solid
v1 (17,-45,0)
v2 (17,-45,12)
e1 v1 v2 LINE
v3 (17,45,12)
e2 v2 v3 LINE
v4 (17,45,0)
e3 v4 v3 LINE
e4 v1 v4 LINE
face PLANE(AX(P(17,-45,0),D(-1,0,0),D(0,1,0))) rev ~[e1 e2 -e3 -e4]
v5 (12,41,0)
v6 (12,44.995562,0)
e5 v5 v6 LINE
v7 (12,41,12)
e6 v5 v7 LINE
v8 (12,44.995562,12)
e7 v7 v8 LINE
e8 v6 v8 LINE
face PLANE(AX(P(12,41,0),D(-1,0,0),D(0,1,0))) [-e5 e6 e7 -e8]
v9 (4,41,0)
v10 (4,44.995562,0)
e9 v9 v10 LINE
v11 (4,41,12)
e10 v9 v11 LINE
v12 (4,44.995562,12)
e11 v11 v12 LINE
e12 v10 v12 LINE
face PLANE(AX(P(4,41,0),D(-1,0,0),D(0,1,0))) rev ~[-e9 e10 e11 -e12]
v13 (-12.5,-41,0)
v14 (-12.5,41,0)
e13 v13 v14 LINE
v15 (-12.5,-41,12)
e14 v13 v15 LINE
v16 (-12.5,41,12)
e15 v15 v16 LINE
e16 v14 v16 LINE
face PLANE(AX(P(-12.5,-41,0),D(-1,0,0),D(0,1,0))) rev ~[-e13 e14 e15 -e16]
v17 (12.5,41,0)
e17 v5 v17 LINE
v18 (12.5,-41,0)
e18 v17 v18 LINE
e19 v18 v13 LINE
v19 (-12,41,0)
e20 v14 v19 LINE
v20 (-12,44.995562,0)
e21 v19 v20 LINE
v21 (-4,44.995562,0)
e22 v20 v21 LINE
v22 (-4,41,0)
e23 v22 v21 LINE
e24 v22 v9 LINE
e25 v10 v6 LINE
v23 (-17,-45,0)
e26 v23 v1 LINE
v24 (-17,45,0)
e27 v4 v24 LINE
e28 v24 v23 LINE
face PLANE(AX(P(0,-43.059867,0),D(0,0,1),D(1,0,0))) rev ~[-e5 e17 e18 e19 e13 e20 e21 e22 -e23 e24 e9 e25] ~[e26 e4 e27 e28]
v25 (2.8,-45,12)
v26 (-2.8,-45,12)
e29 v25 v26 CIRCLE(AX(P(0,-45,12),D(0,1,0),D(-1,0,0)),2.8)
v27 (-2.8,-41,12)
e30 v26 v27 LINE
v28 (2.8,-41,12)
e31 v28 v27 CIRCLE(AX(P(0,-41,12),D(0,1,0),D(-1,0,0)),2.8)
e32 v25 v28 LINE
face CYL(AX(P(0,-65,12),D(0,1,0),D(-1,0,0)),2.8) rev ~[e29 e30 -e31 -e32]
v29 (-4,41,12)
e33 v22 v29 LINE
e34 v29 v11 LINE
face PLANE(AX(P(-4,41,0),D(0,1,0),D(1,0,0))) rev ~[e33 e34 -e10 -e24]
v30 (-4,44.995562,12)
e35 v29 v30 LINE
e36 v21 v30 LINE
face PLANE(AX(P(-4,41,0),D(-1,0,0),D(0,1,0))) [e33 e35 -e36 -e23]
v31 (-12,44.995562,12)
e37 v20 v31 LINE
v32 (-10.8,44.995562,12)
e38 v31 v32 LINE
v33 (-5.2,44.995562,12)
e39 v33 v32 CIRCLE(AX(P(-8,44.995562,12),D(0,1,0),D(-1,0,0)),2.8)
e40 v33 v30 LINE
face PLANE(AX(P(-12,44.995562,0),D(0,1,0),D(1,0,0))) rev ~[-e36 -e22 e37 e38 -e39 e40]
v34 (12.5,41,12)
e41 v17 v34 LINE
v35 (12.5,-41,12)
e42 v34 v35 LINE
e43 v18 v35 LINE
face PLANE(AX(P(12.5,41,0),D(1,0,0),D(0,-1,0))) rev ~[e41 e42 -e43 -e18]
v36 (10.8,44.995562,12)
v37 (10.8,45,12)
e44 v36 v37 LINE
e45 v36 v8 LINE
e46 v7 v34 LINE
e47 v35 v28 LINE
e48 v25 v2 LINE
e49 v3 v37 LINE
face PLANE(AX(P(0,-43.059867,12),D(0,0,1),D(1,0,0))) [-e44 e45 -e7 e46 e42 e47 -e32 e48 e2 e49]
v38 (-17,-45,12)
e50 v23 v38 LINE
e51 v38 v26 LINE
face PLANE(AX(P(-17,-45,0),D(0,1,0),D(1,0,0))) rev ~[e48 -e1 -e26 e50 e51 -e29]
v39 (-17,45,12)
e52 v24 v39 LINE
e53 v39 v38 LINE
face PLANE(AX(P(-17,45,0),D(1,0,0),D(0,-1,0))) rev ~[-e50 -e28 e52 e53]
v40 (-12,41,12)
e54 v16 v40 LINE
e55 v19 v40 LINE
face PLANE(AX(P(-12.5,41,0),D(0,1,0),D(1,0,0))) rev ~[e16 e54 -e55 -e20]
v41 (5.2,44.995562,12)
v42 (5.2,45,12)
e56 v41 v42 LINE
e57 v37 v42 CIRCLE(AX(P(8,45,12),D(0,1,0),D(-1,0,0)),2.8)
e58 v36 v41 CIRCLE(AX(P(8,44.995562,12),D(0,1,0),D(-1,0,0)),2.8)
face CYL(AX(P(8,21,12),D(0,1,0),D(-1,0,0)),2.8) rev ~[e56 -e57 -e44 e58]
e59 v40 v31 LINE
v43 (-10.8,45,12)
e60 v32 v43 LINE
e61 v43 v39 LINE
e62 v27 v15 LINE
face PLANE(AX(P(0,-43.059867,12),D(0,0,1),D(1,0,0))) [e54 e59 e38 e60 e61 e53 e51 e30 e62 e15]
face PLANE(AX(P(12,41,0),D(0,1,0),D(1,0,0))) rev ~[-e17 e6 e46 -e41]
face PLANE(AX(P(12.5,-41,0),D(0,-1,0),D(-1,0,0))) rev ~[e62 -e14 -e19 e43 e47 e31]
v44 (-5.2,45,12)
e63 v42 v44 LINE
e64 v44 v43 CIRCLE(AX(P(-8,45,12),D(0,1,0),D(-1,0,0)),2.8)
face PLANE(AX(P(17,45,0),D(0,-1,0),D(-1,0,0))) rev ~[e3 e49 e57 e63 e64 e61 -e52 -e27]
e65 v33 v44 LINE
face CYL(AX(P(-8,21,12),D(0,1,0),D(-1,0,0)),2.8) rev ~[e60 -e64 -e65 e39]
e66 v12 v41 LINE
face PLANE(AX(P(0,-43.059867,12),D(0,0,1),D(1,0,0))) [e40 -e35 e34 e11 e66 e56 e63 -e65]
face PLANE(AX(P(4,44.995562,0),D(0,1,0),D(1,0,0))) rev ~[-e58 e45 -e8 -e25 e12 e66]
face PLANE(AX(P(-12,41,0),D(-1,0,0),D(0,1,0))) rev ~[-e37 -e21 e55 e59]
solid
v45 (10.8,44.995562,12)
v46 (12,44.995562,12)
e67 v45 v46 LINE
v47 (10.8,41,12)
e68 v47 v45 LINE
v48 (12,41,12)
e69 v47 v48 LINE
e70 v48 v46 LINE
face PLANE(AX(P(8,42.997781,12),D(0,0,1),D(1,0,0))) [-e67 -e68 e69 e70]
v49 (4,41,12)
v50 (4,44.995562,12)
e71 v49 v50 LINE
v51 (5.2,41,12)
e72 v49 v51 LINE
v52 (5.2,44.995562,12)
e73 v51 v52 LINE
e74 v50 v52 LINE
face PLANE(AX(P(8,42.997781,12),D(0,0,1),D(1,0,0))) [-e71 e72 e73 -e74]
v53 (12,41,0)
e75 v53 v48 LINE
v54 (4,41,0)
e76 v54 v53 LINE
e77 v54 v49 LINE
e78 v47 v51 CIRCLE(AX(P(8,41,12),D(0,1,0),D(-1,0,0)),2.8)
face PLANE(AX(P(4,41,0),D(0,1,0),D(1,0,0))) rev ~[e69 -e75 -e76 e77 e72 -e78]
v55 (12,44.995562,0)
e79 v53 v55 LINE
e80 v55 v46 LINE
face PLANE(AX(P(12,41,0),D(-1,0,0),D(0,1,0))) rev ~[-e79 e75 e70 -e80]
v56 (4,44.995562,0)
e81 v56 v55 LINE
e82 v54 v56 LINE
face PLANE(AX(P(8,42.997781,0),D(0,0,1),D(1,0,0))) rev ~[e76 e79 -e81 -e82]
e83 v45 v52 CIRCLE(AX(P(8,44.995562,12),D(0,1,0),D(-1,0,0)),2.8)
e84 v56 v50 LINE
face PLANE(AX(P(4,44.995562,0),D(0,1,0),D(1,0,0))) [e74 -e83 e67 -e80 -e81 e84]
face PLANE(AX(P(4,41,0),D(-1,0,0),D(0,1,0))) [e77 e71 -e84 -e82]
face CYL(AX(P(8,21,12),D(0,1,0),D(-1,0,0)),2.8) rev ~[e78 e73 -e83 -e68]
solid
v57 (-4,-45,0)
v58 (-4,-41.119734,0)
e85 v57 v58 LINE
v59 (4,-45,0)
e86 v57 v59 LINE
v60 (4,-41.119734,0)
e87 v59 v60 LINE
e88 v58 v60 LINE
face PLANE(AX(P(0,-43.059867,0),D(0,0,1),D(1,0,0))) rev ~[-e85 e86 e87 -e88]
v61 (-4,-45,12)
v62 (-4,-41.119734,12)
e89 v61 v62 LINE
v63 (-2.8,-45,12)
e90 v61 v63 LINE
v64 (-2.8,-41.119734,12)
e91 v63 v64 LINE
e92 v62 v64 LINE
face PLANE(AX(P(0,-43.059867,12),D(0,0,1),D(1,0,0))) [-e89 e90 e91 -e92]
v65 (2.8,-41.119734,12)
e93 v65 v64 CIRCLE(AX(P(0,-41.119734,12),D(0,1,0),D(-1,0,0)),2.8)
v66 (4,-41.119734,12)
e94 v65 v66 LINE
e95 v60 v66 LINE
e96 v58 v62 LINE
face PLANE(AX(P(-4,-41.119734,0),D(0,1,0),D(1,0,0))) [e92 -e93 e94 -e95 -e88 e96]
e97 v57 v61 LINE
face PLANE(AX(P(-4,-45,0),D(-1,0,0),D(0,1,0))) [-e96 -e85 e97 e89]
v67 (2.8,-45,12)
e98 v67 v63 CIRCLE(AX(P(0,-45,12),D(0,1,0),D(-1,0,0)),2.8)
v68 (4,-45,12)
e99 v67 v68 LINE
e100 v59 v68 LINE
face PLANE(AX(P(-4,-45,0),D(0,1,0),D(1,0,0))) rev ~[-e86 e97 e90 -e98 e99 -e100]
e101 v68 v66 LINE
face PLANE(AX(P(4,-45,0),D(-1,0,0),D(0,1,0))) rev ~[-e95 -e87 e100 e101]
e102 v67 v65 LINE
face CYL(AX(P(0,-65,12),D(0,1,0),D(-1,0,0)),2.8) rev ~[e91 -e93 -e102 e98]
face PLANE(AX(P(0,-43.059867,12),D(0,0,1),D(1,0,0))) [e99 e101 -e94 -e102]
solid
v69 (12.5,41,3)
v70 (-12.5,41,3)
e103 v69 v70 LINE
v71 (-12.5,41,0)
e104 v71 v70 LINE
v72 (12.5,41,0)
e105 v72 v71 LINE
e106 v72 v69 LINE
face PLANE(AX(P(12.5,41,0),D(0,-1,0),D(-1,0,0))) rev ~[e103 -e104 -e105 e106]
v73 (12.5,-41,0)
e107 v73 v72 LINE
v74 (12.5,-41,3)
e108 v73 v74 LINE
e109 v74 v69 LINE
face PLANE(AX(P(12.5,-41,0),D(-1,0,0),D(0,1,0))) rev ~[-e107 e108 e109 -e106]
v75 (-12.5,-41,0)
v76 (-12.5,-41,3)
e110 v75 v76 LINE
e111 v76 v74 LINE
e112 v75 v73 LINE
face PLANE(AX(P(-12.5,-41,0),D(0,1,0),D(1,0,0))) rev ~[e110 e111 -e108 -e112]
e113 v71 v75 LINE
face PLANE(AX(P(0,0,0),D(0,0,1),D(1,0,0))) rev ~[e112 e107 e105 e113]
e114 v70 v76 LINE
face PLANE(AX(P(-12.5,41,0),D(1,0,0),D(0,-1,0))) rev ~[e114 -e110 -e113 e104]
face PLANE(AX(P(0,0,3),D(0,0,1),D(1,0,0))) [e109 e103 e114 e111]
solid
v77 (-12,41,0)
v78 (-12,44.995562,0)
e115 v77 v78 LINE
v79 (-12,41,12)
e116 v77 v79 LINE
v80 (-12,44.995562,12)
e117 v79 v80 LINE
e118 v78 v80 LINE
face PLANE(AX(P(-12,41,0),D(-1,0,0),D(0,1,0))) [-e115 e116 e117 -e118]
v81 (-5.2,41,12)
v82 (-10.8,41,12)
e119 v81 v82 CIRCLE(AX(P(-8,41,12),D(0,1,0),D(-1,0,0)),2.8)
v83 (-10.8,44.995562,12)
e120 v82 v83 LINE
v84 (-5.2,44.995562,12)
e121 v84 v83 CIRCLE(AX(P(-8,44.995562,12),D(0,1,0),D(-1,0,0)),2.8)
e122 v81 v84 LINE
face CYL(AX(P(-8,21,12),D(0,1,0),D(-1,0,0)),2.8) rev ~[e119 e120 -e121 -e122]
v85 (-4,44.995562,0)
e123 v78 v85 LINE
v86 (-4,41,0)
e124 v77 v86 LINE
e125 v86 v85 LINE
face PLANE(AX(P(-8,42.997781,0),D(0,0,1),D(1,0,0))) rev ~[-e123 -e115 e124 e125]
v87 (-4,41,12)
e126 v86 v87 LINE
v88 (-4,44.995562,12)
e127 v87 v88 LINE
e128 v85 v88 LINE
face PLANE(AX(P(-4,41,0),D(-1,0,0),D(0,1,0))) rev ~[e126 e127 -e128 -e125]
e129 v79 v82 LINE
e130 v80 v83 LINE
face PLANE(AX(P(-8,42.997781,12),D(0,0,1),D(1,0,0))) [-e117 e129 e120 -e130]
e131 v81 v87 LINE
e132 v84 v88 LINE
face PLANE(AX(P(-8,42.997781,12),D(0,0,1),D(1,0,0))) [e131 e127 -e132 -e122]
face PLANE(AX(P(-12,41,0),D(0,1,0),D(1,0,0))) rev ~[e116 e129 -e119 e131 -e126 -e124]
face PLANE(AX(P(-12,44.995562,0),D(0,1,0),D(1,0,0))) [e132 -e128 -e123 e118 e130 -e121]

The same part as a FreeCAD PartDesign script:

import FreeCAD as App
import Part
import Sketcher

V = App.Vector
Q = App.Units.Quantity


def add_polygon(sketch, points):
    """Adds a closed chain of lines whose ends are joined by coincident constraints."""
    first, n = sketch.GeometryCount, len(points)
    for a, b in zip(points, points[1:] + points[:1]):
        sketch.addGeometry(Part.LineSegment(App.Vector(*a, 0), App.Vector(*b, 0)), False)
    for i in range(n):
        sketch.addConstraint(Sketcher.Constraint("Coincident", first + i, 2, first + (i + 1) % n, 1))

doc = App.newDocument("Part")
body = doc.addObject("PartDesign::Body", "Body")
body.AllowCompound = True

# Sketch on XY plane
sketch1 = body.newObject("Sketcher::SketchObject", "Sketch")
sketch1.AttachmentSupport = (doc.getObject("XY_Plane"), [""])
sketch1.MapMode = "FlatFace"
add_polygon(sketch1, [(-4, -41.1), (-4, -45), (4, -45), (4, -41.1)])  # lines 0-3
add_polygon(sketch1, [(-12, 45), (-12, 41), (-4, 41), (-4, 45)])  # lines 4-7
add_polygon(sketch1, [(4, 45), (4, 41), (12, 41), (12, 45)])  # lines 8-11
sketch1.addConstraint([
    Sketcher.Constraint("Vertical", 0),
    Sketcher.Constraint("Horizontal", 1),
    Sketcher.Constraint("Vertical", 2),
    Sketcher.Constraint("Horizontal", 3),
    Sketcher.Constraint("Vertical", 4),
    Sketcher.Constraint("Horizontal", 5),
    Sketcher.Constraint("Vertical", 6),
    Sketcher.Constraint("Horizontal", 7),
    Sketcher.Constraint("Vertical", 8),
    Sketcher.Constraint("Horizontal", 9),
    Sketcher.Constraint("Vertical", 10),
    Sketcher.Constraint("Horizontal", 11),
    Sketcher.Constraint("Symmetric", 5, 2, 8, 2, -2),
    Sketcher.Constraint("Symmetric", 7, 2, 10, 2, -2),
    Sketcher.Constraint("Vertical", 3, 2, 5, 2),
    Sketcher.Constraint("Vertical", 2, 2, 8, 2),
    Sketcher.Constraint("Equal", 3, 5),
    Sketcher.Constraint("DistanceX", 1, 1, 1, 2, Q("8 mm")),
    Sketcher.Constraint("DistanceY", 0, 2, -1, 1, Q("45 mm")),
    Sketcher.Constraint("DistanceY", -1, 1, 4, 2, Q("41 mm")),
    Sketcher.Constraint("DistanceY", 4, 2, 4, 1, Q("3.995562 mm")),
    Sketcher.Constraint("DistanceY", 0, 2, 0, 1, Q("3.880266 mm")),
])
pad1 = body.newObject("PartDesign::Pad", "Pad")
pad1.Profile = sketch1
pad1.Length = 12

# Sketch on XZ plane
sketch2 = body.newObject("Sketcher::SketchObject", "Sketch001")
sketch2.AttachmentSupport = (doc.getObject("XZ_Plane"), [""])
sketch2.MapMode = "FlatFace"
sketch2.AttachmentOffset = App.Placement(V(0, 0, 45), App.Rotation())
sketch2.addGeometry(Part.Circle(V(0, 12, 0), V(0, 0, 1), 2.8), False)
sketch2.addConstraint([
    Sketcher.Constraint("PointOnObject", 0, 3, -2),
    Sketcher.Constraint("Diameter", 0, Q("5.6 mm")),
    Sketcher.Constraint("DistanceY", -1, 1, 0, 3, Q("12 mm")),
])
doc.recompute()
hole = body.newObject("PartDesign::Hole", "Hole")
hole.Profile = sketch2
hole.ThreadType = "None"
hole.Diameter = 5.6
hole.DepthType = "Dimension"
hole.Depth = 20
hole.DrillPoint = "Flat"

# Sketch on XZ plane
sketch3 = body.newObject("Sketcher::SketchObject", "Sketch002")
sketch3.AttachmentSupport = (doc.getObject("XZ_Plane"), [""])
sketch3.MapMode = "FlatFace"
sketch3.AttachmentOffset = App.Placement(V(0, 0, -41), App.Rotation())
sketch3.addGeometry(Part.Circle(V(8, 12, 0), V(0, 0, 1), 2.8), False)
sketch3.addConstraint([
    Sketcher.Constraint("Diameter", 0, Q("5.6 mm")),
    Sketcher.Constraint("DistanceX", -1, 1, 0, 3, Q("8 mm")),
    Sketcher.Constraint("DistanceY", -1, 1, 0, 3, Q("12 mm")),
])
doc.recompute()
hole2 = body.newObject("PartDesign::Hole", "Hole001")
hole2.Profile = sketch3
hole2.ThreadType = "None"
hole2.Diameter = 5.6
hole2.DepthType = "Dimension"
hole2.Depth = 20
hole2.DrillPoint = "Flat"

# Sketch on XZ plane
sketch4 = body.newObject("Sketcher::SketchObject", "Sketch003")
sketch4.AttachmentSupport = (doc.getObject("XZ_Plane"), [""])
sketch4.MapMode = "FlatFace"
sketch4.AttachmentOffset = App.Placement(V(0, 0, -41), App.Rotation())
sketch4.addGeometry(Part.Circle(V(-8, 12, 0), V(0, 0, 1), 2.8), False)
sketch4.addConstraint([
    Sketcher.Constraint("Diameter", 0, Q("5.6 mm")),
    Sketcher.Constraint("DistanceX", 0, 3, -1, 1, Q("8 mm")),
    Sketcher.Constraint("DistanceY", -1, 1, 0, 3, Q("12 mm")),
])
doc.recompute()
hole3 = body.newObject("PartDesign::Hole", "Hole002")
hole3.Profile = sketch4
hole3.ThreadType = "None"
hole3.Diameter = 5.6
hole3.DepthType = "Dimension"
hole3.Depth = 20
hole3.DrillPoint = "Flat"
body2 = doc.addObject("PartDesign::Body", "Body001")

# Sketch on XY plane
sketch5 = body2.newObject("Sketcher::SketchObject", "Sketch004")
sketch5.AttachmentSupport = (doc.getObject("XY_Plane001"), [""])
sketch5.MapMode = "FlatFace"
add_polygon(sketch5, [(17, -45), (17, 45), (-17, 45), (-17, -45)])  # lines 0-3
add_polygon(sketch5, [(-12, 45), (-4, 45), (-4, 41), (4, 41), (4, 45), (12, 45), (12, 41), (12.5, 41), (12.5, -41), (-12.5, -41), (-12.5, 41), (-12, 41)])  # lines 4-15
sketch5.addConstraint([
    Sketcher.Constraint("Vertical", 0),
    Sketcher.Constraint("Horizontal", 1),
    Sketcher.Constraint("Vertical", 2),
    Sketcher.Constraint("Horizontal", 3),
    Sketcher.Constraint("Horizontal", 4),
    Sketcher.Constraint("Vertical", 5),
    Sketcher.Constraint("Horizontal", 6),
    Sketcher.Constraint("Vertical", 7),
    Sketcher.Constraint("Horizontal", 8),
    Sketcher.Constraint("Vertical", 9),
    Sketcher.Constraint("Horizontal", 10),
    Sketcher.Constraint("Vertical", 11),
    Sketcher.Constraint("Horizontal", 12),
    Sketcher.Constraint("Vertical", 13),
    Sketcher.Constraint("Horizontal", 14),
    Sketcher.Constraint("Vertical", 15),
    Sketcher.Constraint("Symmetric", 0, 2, 2, 2, -1, 1),
    Sketcher.Constraint("Symmetric", 10, 2, 12, 2, -1, 1),
    Sketcher.Constraint("Symmetric", 4, 2, 7, 2, -2),
    Sketcher.Constraint("Symmetric", 9, 2, 14, 2, -2),
    Sketcher.Constraint("Horizontal", 6, 2, 9, 2),
    Sketcher.Constraint("Equal", 4, 6),
    Sketcher.Constraint("DistanceX", 1, 2, 1, 1, Q("34 mm")),
    Sketcher.Constraint("DistanceX", 4, 1, 4, 2, Q("8 mm")),
    Sketcher.Constraint("DistanceX", 12, 2, 12, 1, Q("25 mm")),
    Sketcher.Constraint("DistanceY", 0, 1, 0, 2, Q("90 mm")),
    Sketcher.Constraint("DistanceY", 11, 2, 11, 1, Q("82 mm")),
    Sketcher.Constraint("DistanceY", 5, 2, 5, 1, Q("3.995562 mm")),
])
pad2 = body2.newObject("PartDesign::Pad", "Pad001")
pad2.Profile = sketch5
pad2.Length = 12

# Sketch on XZ plane
sketch6 = body2.newObject("Sketcher::SketchObject", "Sketch005")
sketch6.AttachmentSupport = (doc.getObject("XZ_Plane001"), [""])
sketch6.MapMode = "FlatFace"
sketch6.AttachmentOffset = App.Placement(V(0, 0, 45), App.Rotation())
sketch6.addGeometry(Part.Circle(V(0, 12, 0), V(0, 0, 1), 2.8), False)
sketch6.addConstraint([
    Sketcher.Constraint("PointOnObject", 0, 3, -2),
    Sketcher.Constraint("Diameter", 0, Q("5.6 mm")),
    Sketcher.Constraint("DistanceY", -1, 1, 0, 3, Q("12 mm")),
])
doc.recompute()
hole4 = body2.newObject("PartDesign::Hole", "Hole003")
hole4.Profile = sketch6
hole4.ThreadType = "None"
hole4.Diameter = 5.6
hole4.DepthType = "Dimension"
hole4.Depth = 20
hole4.DrillPoint = "Flat"

# Sketch on XZ plane
sketch7 = body2.newObject("Sketcher::SketchObject", "Sketch006")
sketch7.AttachmentSupport = (doc.getObject("XZ_Plane001"), [""])
sketch7.MapMode = "FlatFace"
sketch7.AttachmentOffset = App.Placement(V(0, 0, -41), App.Rotation())
sketch7.addGeometry(Part.Circle(V(8, 12, 0), V(0, 0, 1), 2.8), False)
sketch7.addConstraint([
    Sketcher.Constraint("Diameter", 0, Q("5.6 mm")),
    Sketcher.Constraint("DistanceX", -1, 1, 0, 3, Q("8 mm")),
    Sketcher.Constraint("DistanceY", -1, 1, 0, 3, Q("12 mm")),
])
doc.recompute()
hole5 = body2.newObject("PartDesign::Hole", "Hole004")
hole5.Profile = sketch7
hole5.ThreadType = "None"
hole5.Diameter = 5.6
hole5.DepthType = "Dimension"
hole5.Depth = 20
hole5.DrillPoint = "Flat"

# Sketch on XZ plane
sketch8 = body2.newObject("Sketcher::SketchObject", "Sketch007")
sketch8.AttachmentSupport = (doc.getObject("XZ_Plane001"), [""])
sketch8.MapMode = "FlatFace"
sketch8.AttachmentOffset = App.Placement(V(0, 0, -41), App.Rotation())
sketch8.addGeometry(Part.Circle(V(-8, 12, 0), V(0, 0, 1), 2.8), False)
sketch8.addConstraint([
    Sketcher.Constraint("Diameter", 0, Q("5.6 mm")),
    Sketcher.Constraint("DistanceX", 0, 3, -1, 1, Q("8 mm")),
    Sketcher.Constraint("DistanceY", -1, 1, 0, 3, Q("12 mm")),
])
doc.recompute()
hole6 = body2.newObject("PartDesign::Hole", "Hole005")
hole6.Profile = sketch8
hole6.ThreadType = "None"
hole6.Diameter = 5.6
hole6.DepthType = "Dimension"
hole6.Depth = 20
hole6.DrillPoint = "Flat"
body3 = doc.addObject("PartDesign::Body", "Body002")

# Sketch on XY plane
sketch9 = body3.newObject("Sketcher::SketchObject", "Sketch008")
sketch9.AttachmentSupport = (doc.getObject("XY_Plane002"), [""])
sketch9.MapMode = "FlatFace"
add_polygon(sketch9, [(12, -41), (12, 41), (-12, 41), (-12, -41)])  # lines 0-3
sketch9.addConstraint([
    Sketcher.Constraint("Vertical", 0),
    Sketcher.Constraint("Horizontal", 1),
    Sketcher.Constraint("Vertical", 2),
    Sketcher.Constraint("Horizontal", 3),
    Sketcher.Constraint("Symmetric", 0, 2, 2, 2, -1, 1),
    Sketcher.Constraint("DistanceX", 1, 2, 1, 1, Q("25 mm")),
    Sketcher.Constraint("DistanceY", 0, 1, 0, 2, Q("82 mm")),
])
pad3 = body3.newObject("PartDesign::Pad", "Pad002")
pad3.Profile = sketch9
pad3.Length = 3

doc.recompute()
